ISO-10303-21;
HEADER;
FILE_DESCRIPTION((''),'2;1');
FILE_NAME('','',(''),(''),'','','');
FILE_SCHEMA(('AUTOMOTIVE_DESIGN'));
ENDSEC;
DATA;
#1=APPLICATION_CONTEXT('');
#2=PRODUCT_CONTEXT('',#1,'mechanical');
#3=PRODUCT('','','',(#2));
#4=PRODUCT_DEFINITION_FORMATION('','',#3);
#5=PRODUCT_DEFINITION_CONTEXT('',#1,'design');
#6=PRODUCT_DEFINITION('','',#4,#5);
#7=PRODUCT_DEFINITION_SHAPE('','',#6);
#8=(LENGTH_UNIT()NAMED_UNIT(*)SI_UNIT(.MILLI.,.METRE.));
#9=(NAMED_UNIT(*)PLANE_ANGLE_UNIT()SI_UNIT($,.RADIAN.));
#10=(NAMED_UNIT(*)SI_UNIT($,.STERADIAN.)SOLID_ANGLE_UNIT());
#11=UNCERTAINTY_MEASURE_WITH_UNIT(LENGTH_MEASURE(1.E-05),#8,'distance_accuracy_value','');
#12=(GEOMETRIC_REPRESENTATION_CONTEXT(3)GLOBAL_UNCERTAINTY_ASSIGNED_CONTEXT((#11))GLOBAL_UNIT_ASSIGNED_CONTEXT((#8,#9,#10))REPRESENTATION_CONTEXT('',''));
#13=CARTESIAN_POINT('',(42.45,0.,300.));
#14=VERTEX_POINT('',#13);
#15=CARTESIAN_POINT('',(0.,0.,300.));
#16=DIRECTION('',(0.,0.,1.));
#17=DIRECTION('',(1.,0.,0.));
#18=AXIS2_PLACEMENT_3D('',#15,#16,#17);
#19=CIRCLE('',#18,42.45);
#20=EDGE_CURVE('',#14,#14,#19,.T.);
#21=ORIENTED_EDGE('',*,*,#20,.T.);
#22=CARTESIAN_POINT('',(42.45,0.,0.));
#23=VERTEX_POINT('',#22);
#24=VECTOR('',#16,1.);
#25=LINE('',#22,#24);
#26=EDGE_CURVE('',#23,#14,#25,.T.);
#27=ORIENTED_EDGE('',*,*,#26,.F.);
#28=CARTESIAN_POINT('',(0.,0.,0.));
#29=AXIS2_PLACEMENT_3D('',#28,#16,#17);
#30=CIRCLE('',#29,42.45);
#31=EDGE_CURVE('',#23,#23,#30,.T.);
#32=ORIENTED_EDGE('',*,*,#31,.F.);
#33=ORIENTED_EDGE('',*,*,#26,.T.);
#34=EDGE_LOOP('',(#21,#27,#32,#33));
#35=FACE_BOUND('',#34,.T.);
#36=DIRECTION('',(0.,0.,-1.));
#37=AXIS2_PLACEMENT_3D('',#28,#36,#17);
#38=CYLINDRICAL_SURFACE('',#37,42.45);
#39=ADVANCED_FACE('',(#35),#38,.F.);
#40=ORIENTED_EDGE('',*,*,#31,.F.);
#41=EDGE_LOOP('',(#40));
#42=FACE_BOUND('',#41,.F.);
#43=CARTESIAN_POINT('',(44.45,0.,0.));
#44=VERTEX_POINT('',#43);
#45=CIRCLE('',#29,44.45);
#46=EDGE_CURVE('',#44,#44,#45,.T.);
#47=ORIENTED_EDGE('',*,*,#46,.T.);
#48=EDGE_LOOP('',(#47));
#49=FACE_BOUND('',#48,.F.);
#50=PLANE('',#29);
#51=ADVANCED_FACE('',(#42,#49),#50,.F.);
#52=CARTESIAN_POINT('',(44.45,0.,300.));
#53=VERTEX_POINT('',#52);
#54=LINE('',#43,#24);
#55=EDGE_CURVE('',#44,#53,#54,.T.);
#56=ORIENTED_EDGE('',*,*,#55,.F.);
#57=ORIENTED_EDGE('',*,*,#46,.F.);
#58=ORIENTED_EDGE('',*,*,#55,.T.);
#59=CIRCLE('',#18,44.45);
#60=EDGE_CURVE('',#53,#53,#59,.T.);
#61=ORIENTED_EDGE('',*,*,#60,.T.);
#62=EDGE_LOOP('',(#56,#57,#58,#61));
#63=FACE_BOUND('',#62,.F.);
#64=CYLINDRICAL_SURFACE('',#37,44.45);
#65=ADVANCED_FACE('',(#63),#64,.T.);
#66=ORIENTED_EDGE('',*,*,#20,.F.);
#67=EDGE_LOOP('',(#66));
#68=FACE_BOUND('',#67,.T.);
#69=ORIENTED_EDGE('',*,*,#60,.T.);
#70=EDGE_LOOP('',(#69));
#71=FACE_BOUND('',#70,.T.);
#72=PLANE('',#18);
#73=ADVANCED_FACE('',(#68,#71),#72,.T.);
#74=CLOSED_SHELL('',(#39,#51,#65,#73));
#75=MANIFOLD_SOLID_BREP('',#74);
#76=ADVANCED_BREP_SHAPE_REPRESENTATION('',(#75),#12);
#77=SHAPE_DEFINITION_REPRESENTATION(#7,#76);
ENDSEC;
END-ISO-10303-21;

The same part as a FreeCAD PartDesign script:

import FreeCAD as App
import Part
import Sketcher
from FreeCAD import Vector

doc = App.newDocument("Part")
body = doc.addObject("PartDesign::Body", "Body")

sketch1 = doc.addObject("Sketcher::SketchObject", "Sketch")
body.addObject(sketch1)
sketch1.AttachmentSupport = (doc.XY_Plane, [""])
sketch1.MapMode = "FlatFace"
sketch1.addGeometry([
    Part.Circle(Vector(0, 0, 0), Vector(0, 0, 1), 44),
    Part.Circle(Vector(0, 0, 0), Vector(0, 0, 1), 42),
], False)
sketch1.addConstraint([
    Sketcher.Constraint("Coincident", 0, 3, -1, 1),
    Sketcher.Constraint("Coincident", 1, 3, -1, 1),
    Sketcher.Constraint("Diameter", 0, 88.9),
    Sketcher.Constraint("Diameter", 1, 84.9),
])
pad1 = doc.addObject("PartDesign::Pad", "Pad")
body.addObject(pad1)
pad1.Profile = sketch1
pad1.Length = 300

doc.recompute()
